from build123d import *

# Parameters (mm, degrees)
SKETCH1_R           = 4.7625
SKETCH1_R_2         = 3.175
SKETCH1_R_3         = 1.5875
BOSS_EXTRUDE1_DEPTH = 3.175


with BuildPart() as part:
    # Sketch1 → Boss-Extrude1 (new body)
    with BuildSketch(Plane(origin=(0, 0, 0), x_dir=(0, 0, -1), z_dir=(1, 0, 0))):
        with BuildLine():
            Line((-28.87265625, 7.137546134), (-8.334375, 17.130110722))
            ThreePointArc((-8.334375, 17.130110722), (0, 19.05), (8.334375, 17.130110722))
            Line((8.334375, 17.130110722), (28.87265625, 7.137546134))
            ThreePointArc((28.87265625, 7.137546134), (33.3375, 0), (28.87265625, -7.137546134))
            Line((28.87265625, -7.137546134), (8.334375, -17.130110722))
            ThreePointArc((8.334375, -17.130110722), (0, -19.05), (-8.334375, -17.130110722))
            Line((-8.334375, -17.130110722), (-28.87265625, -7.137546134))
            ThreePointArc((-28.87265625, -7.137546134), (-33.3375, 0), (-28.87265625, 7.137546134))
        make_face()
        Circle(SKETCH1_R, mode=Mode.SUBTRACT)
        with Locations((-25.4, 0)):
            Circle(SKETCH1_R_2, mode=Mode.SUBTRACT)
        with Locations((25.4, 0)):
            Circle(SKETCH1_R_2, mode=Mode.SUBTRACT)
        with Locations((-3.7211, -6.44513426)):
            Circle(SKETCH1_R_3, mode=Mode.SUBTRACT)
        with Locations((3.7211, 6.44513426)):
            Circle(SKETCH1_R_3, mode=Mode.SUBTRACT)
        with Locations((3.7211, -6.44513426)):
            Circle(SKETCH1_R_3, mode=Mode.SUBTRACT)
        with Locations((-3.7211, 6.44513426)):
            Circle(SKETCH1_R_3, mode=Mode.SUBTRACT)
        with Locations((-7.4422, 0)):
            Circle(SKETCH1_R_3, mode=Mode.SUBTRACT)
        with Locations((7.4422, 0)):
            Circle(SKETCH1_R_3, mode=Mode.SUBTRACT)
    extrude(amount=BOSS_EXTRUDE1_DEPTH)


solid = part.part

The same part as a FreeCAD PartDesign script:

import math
import FreeCAD as App
import Part
import Sketcher

V = App.Vector
Q = App.Units.Quantity

doc = App.newDocument("Part")
body = doc.addObject("PartDesign::Body", "Body")

# Sketch on YZ plane
sketch1 = body.newObject("Sketcher::SketchObject", "Sketch")
sketch1.AttachmentSupport = (doc.getObject("YZ_Plane"), [""])
sketch1.MapMode = "FlatFace"
sketch1.addGeometry([
    Part.LineSegment(V(17.130111, 8.334375, 0), V(7.137546, 28.872656, 0)),  # 0
    Part.ArcOfCircle(Part.Circle(V(0, 25.4, 0), V(0, 0, 1), 7.9375), math.radians(25.94448), math.radians(154.05552)),  # 1
    Part.LineSegment(V(-7.137546, 28.872656, 0), V(-17.130111, 8.334375, 0)),  # 2
    Part.ArcOfCircle(Part.Circle(V(0, 0, 0), V(0, 0, 1), 19.05), math.radians(154.05552), math.radians(205.94448)),  # 3
    Part.LineSegment(V(-17.130111, -8.334375, 0), V(-7.137546, -28.872656, 0)),  # 4
    Part.ArcOfCircle(Part.Circle(V(0, -25.4, 0), V(0, 0, 1), 7.9375), math.radians(-154.05552), math.radians(-25.94448)),  # 5
    Part.LineSegment(V(7.137546, -28.872656, 0), V(17.130111, -8.334375, 0)),  # 6
    Part.ArcOfCircle(Part.Circle(V(0, 0, 0), V(0, 0, 1), 19.05), math.radians(-25.94448), math.radians(25.94448)),  # 7
    Part.Circle(V(-6.445134, -3.7211, 0), V(0, 0, 1), 1.5875),  # 8
    Part.Circle(V(-6.445134, 3.7211, 0), V(0, 0, 1), 1.5875),  # 9
    Part.Circle(V(0, -25.4, 0), V(0, 0, 1), 3.175),  # 10
    Part.Circle(V(0, -7.4422, 0), V(0, 0, 1), 1.5875),  # 11
    Part.Circle(V(6.445134, -3.7211, 0), V(0, 0, 1), 1.5875),  # 12
    Part.Circle(V(0, 0, 0), V(0, 0, 1), 4.7625),  # 13
    Part.Circle(V(0, 7.4422, 0), V(0, 0, 1), 1.5875),  # 14
    Part.Circle(V(0, 25.4, 0), V(0, 0, 1), 3.175),  # 15
    Part.Circle(V(6.445134, 3.7211, 0), V(0, 0, 1), 1.5875),  # 16
], False)
sketch1.addConstraint([
    Sketcher.Constraint("Tangent", 0, 2, 1, 1),
    Sketcher.Constraint("Tangent", 1, 2, 2, 1),
    Sketcher.Constraint("Tangent", 2, 2, 3, 1),
    Sketcher.Constraint("Tangent", 3, 2, 4, 1),
    Sketcher.Constraint("Tangent", 4, 2, 5, 1),
    Sketcher.Constraint("Tangent", 5, 2, 6, 1),
    Sketcher.Constraint("Tangent", 6, 2, 7, 1),
    Sketcher.Constraint("Tangent", 7, 2, 0, 1),
    Sketcher.Constraint("Coincident", 3, 3, -1, 1),
    Sketcher.Constraint("Coincident", 7, 3, -1, 1),
    Sketcher.Constraint("Coincident", 13, 3, -1, 1),
    Sketcher.Constraint("Coincident", 10, 3, 5, 3),
    Sketcher.Constraint("Coincident", 15, 3, 1, 3),
    Sketcher.Constraint("Equal", 1, 5),
    Sketcher.Constraint("Equal", 3, 7),
    Sketcher.Constraint("Equal", 8, 9),
    Sketcher.Constraint("Equal", 9, 11),
    Sketcher.Constraint("Equal", 11, 12),
    Sketcher.Constraint("Equal", 12, 14),
    Sketcher.Constraint("Equal", 10, 15),
    Sketcher.Constraint("Equal", 14, 16),
    Sketcher.Constraint("Symmetric", 1, 3, 5, 3, -1, 1),
    Sketcher.Constraint("Symmetric", 9, 3, 12, 3, -1, 1),
    Sketcher.Constraint("Symmetric", 11, 3, 14, 3, -1, 1),
    Sketcher.Constraint("Symmetric", 8, 3, 16, 3, -1, 1),
    Sketcher.Constraint("Symmetric", 8, 3, 12, 3, -2),
    Sketcher.Constraint("PointOnObject", 1, 3, -2),
    Sketcher.Constraint("PointOnObject", 11, 3, -2),
    Sketcher.Constraint("Diameter", 10, Q("0.25 in")),
    Sketcher.Constraint("Radius", 3, Q("0.75 in")),
    Sketcher.Constraint("Diameter", 8, Q("0.125 in")),
    Sketcher.Constraint("Diameter", 13, Q("0.375 in")),
    Sketcher.Constraint("DistanceY", -1, 1, 1, 3, Q("1 in")),
    Sketcher.Constraint("Radius", 1, Q("0.3125 in")),
    Sketcher.Constraint("DistanceY", 11, 3, -1, 1, Q("0.293 in")),
    Sketcher.Constraint("DistanceY", 8, 3, 9, 3, Q("0.293 in")),
    Sketcher.Constraint("DistanceX", 8, 3, 12, 3, 12.890269),
])
pad1 = body.newObject("PartDesign::Pad", "Pad")
pad1.Profile = sketch1
pad1.Length = Q("0.125 in")

doc.recompute()
